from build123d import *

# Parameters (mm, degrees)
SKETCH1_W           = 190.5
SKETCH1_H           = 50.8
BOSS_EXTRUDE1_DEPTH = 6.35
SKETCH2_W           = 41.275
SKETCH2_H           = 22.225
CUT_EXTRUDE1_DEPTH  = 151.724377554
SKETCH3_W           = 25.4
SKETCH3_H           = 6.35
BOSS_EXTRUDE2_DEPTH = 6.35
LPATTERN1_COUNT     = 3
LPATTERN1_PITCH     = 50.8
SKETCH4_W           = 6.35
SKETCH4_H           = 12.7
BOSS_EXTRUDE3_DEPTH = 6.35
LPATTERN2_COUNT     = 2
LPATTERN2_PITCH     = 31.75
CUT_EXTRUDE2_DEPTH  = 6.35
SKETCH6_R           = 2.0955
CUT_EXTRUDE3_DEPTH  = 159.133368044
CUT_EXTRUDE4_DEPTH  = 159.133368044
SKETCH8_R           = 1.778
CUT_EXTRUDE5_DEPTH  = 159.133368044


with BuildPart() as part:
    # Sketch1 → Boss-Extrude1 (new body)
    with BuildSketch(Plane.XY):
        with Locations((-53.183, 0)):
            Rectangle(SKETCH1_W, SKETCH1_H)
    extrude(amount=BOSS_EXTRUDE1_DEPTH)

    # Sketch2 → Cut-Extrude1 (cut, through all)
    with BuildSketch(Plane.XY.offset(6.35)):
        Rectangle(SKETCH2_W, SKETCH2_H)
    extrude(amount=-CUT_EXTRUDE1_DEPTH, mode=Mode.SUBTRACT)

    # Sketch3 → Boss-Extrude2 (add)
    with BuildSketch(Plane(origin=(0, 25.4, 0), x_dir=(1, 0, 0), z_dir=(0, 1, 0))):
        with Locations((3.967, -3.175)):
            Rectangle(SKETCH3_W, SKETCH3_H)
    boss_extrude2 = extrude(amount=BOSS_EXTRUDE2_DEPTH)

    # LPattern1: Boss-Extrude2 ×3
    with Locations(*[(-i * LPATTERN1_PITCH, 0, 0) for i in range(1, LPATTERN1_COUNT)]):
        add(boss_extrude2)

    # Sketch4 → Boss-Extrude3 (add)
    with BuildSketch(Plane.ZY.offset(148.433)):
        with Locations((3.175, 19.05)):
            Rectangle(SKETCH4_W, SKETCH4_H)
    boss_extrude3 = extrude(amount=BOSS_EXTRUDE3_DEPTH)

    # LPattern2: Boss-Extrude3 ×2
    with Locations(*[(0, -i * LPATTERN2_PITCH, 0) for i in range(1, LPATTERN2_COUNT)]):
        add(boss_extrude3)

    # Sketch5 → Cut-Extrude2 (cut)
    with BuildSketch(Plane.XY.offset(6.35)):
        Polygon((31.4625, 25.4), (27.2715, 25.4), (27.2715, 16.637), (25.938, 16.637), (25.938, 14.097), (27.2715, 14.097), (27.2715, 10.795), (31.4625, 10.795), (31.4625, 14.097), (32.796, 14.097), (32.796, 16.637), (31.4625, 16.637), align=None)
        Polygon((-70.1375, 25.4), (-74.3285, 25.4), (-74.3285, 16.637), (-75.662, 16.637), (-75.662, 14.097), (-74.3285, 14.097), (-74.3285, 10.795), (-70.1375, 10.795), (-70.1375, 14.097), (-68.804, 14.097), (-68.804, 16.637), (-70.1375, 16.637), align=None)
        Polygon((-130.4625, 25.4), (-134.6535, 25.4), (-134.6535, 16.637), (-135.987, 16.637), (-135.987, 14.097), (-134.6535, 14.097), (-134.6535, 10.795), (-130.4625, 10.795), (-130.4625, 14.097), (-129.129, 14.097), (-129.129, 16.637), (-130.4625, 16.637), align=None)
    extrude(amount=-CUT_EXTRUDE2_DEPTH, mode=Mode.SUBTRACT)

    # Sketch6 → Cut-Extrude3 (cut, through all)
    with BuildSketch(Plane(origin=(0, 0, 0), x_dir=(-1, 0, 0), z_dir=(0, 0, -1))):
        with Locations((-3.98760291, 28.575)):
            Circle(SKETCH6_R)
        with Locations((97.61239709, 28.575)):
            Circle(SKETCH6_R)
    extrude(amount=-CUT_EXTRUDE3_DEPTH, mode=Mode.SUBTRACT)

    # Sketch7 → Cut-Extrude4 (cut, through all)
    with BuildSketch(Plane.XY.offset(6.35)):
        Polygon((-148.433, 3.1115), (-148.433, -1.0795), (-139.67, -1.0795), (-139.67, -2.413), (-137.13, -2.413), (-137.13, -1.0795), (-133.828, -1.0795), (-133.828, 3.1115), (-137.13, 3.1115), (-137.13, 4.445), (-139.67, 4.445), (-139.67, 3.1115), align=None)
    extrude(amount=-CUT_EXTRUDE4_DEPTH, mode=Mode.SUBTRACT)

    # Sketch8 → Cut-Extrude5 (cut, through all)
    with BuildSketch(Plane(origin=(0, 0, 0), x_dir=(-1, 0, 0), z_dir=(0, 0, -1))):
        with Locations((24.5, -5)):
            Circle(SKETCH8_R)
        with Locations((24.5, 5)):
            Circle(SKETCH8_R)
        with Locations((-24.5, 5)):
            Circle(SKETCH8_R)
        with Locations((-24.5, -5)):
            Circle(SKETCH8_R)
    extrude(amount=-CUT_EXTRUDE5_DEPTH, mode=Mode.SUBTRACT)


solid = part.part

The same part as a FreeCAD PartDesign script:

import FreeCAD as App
import Part
import Sketcher
Q = App.Units.Quantity

doc = App.newDocument("Part")
params = doc.addObject("Spreadsheet::Sheet", "Params")
for row, (alias, value) in enumerate([
    ("sketch1_height", "2 in"),
    ("sketch1_width", "7.5 in"),
    ("pad1_length", "0.25 in"),
    ("sketch2_width", "1.625 in"),
    ("sketch2_height", "0.875 in"),
    ("sketch3_width", "1 in"),
    ("sketch3_height", "0.25 in"),
    ("pad2_length", "0.25 in"),
    ("linearpattern_pitch", "2 in"),
    ("sketch4_width", "0.5 in"),
    ("sketch4_height", "0.25 in"),
    ("pad3_length", "0.25 in"),
    ("linearpattern2_pitch", "1.25 in"),
    ("sketch5_height", "0.1 in"),
    ("sketch5_height2", "0.13 in"),
    ("sketch5_width", "0.165 in"),
    ("sketch5_height3", "0.345 in"),
    ("pocket2_length", "0.25 in"),
    ("sketch6_diameter", "0.165 in"),
    ("sketch7_width", "0.1 in"),
    ("sketch7_width2", "0.13 in"),
    ("sketch7_width3", "0.345 in"),
    ("sketch7_height", "0.165 in"),
    ("sketch8_diameter", "0.14 in"),
], start=1):
    params.set(f"A{row}", alias)
    params.set(f"B{row}", "=" + value)
    params.setAlias(f"B{row}", alias)

body = doc.addObject("PartDesign::Body", "Body")

sketch1 = body.newObject("Sketcher::SketchObject", "Sketch")
sketch1.AttachmentSupport = (doc.getObject("XY_Plane"), [""])
sketch1.MapMode = "FlatFace"
sketch1.addGeometry([
    Part.LineSegment(App.Vector(-148, 25, 0), App.Vector(-148, -25, 0)),
    Part.LineSegment(App.Vector(-148, -25, 0), App.Vector(42, -25, 0)),
    Part.LineSegment(App.Vector(42, -25, 0), App.Vector(42, 25, 0)),
    Part.LineSegment(App.Vector(42, 25, 0), App.Vector(-148, 25, 0)),
], False)
sketch1.addConstraint([
    Sketcher.Constraint("Coincident", 0, 2, 1, 1),
    Sketcher.Constraint("Coincident", 1, 2, 2, 1),
    Sketcher.Constraint("Coincident", 2, 2, 3, 1),
    Sketcher.Constraint("Coincident", 3, 2, 0, 1),
    Sketcher.Constraint("Vertical", 0),
    Sketcher.Constraint("Horizontal", 1),
    Sketcher.Constraint("Vertical", 2),
    Sketcher.Constraint("Horizontal", 3),
    Sketcher.Constraint("DistanceY", 0, 2, 0, 1, Q("2 in")),
    Sketcher.Constraint("DistanceX", 1, 1, 1, 2, Q("7.5 in")),
    Sketcher.Constraint("DistanceY", 0, 2, -1, 1, Q("1 in")),
    Sketcher.Constraint("DistanceX", 0, 2, -1, 1, 148.433),
])
sketch1.setExpression("Constraints[8]", "Params.sketch1_height")
sketch1.setExpression("Constraints[9]", "Params.sketch1_width")
pad1 = body.newObject("PartDesign::Pad", "Pad")
pad1.Profile = sketch1
pad1.setExpression("Length", "Params.pad1_length")

sketch2 = body.newObject("Sketcher::SketchObject", "Sketch001")
sketch2.AttachmentSupport = (doc.getObject("XY_Plane"), [""])
sketch2.MapMode = "FlatFace"
sketch2.AttachmentOffset = App.Placement(App.Vector(0, 0, 0.25 * 25.4), App.Rotation())
sketch2.addGeometry([
    Part.LineSegment(App.Vector(-21, 11, 0), App.Vector(-21, -11, 0)),
    Part.LineSegment(App.Vector(-21, -11, 0), App.Vector(21, -11, 0)),
    Part.LineSegment(App.Vector(21, -11, 0), App.Vector(21, 11, 0)),
    Part.LineSegment(App.Vector(21, 11, 0), App.Vector(-21, 11, 0)),
], False)
sketch2.addConstraint([
    Sketcher.Constraint("Coincident", 0, 2, 1, 1),
    Sketcher.Constraint("Coincident", 1, 2, 2, 1),
    Sketcher.Constraint("Coincident", 2, 2, 3, 1),
    Sketcher.Constraint("Coincident", 3, 2, 0, 1),
    Sketcher.Constraint("Vertical", 0),
    Sketcher.Constraint("Horizontal", 1),
    Sketcher.Constraint("Vertical", 2),
    Sketcher.Constraint("Horizontal", 3),
    Sketcher.Constraint("Symmetric", 0, 2, 2, 2, -1, 1),
    Sketcher.Constraint("DistanceX", 1, 1, 1, 2, Q("1.625 in")),
    Sketcher.Constraint("DistanceY", 0, 2, 0, 1, Q("0.875 in")),
])
sketch2.setExpression("Constraints[9]", "Params.sketch2_width")
sketch2.setExpression("Constraints[10]", "Params.sketch2_height")
pocket1 = body.newObject("PartDesign::Pocket", "Pocket")
pocket1.Profile = sketch2
pocket1.Type = "ThroughAll"

sketch3 = body.newObject("Sketcher::SketchObject", "Sketch002")
sketch3.AttachmentSupport = (doc.getObject("XZ_Plane"), [""])
sketch3.MapMode = "FlatFace"
sketch3.AttachmentOffset = App.Placement(App.Vector(0, 0, -1 * 25.4), App.Rotation())
sketch3.addGeometry([
    Part.LineSegment(App.Vector(-9, 0, 0), App.Vector(-9, 6, 0)),
    Part.LineSegment(App.Vector(-9, 6, 0), App.Vector(17, 6, 0)),
    Part.LineSegment(App.Vector(17, 6, 0), App.Vector(17, 0, 0)),
    Part.LineSegment(App.Vector(17, 0, 0), App.Vector(-9, 0, 0)),
], False)
sketch3.addConstraint([
    Sketcher.Constraint("Coincident", 0, 2, 1, 1),
    Sketcher.Constraint("Coincident", 1, 2, 2, 1),
    Sketcher.Constraint("Coincident", 2, 2, 3, 1),
    Sketcher.Constraint("Coincident", 3, 2, 0, 1),
    Sketcher.Constraint("Vertical", 0),
    Sketcher.Constraint("Horizontal", 1),
    Sketcher.Constraint("Vertical", 2),
    Sketcher.Constraint("Horizontal", 3),
    Sketcher.Constraint("PointOnObject", 2, 2, -1),
    Sketcher.Constraint("DistanceX", 1, 1, 1, 2, Q("1 in")),
    Sketcher.Constraint("DistanceY", 0, 1, 0, 2, Q("0.25 in")),
    Sketcher.Constraint("DistanceX", 0, 2, -1, 1, 8.733),
])
sketch3.setExpression("Constraints[9]", "Params.sketch3_width")
sketch3.setExpression("Constraints[10]", "Params.sketch3_height")
pad2 = body.newObject("PartDesign::Pad", "Pad001")
pad2.Profile = sketch3
pad2.setExpression("Length", "Params.pad2_length")
pad2.Reversed = True
doc.recompute()

linearpattern = body.newObject("PartDesign::LinearPattern", "LinearPattern")
linearpattern.Originals = [pad2]
linearpattern.Direction = (doc.getObject("X_Axis"), [""])
linearpattern.Mode = "offset"
linearpattern.setExpression("Offset", "Params.linearpattern_pitch")
linearpattern.Occurrences = 3
linearpattern.Reversed = True
body.Tip = linearpattern

sketch4 = body.newObject("Sketcher::SketchObject", "Sketch003")
sketch4.AttachmentSupport = (doc.getObject("YZ_Plane"), [""])
sketch4.MapMode = "FlatFace"
sketch4.AttachmentOffset = App.Placement(App.Vector(0, 0, -148.433), App.Rotation())
sketch4.addGeometry([
    Part.LineSegment(App.Vector(25, 0, 0), App.Vector(13, 0, 0)),
    Part.LineSegment(App.Vector(13, 0, 0), App.Vector(13, 6, 0)),
    Part.LineSegment(App.Vector(13, 6, 0), App.Vector(25, 6, 0)),
    Part.LineSegment(App.Vector(25, 6, 0), App.Vector(25, 0, 0)),
], False)
sketch4.addConstraint([
    Sketcher.Constraint("Coincident", 0, 2, 1, 1),
    Sketcher.Constraint("Coincident", 1, 2, 2, 1),
    Sketcher.Constraint("Coincident", 2, 2, 3, 1),
    Sketcher.Constraint("Coincident", 3, 2, 0, 1),
    Sketcher.Constraint("Horizontal", 0),
    Sketcher.Constraint("Vertical", 1),
    Sketcher.Constraint("Horizontal", 2),
    Sketcher.Constraint("Vertical", 3),
    Sketcher.Constraint("PointOnObject", 0, 2, -1),
    Sketcher.Constraint("DistanceX", 0, 2, 0, 1, Q("0.5 in")),
    Sketcher.Constraint("DistanceX", -1, 1, 2, 2, Q("1 in")),
    Sketcher.Constraint("DistanceY", 1, 1, 1, 2, Q("0.25 in")),
])
sketch4.setExpression("Constraints[9]", "Params.sketch4_width")
sketch4.setExpression("Constraints[11]", "Params.sketch4_height")
pad3 = body.newObject("PartDesign::Pad", "Pad002")
pad3.Profile = sketch4
pad3.setExpression("Length", "Params.pad3_length")
pad3.Reversed = True
doc.recompute()

linearpattern2 = body.newObject("PartDesign::LinearPattern", "LinearPattern001")
linearpattern2.Originals = [pad3]
linearpattern2.Direction = (doc.getObject("Y_Axis"), [""])
linearpattern2.Mode = "offset"
linearpattern2.setExpression("Offset", "Params.linearpattern2_pitch")
linearpattern2.Occurrences = 2
linearpattern2.Reversed = True
body.Tip = linearpattern2

sketch5 = body.newObject("Sketcher::SketchObject", "Sketch004")
sketch5.AttachmentSupport = (doc.getObject("XY_Plane"), [""])
sketch5.MapMode = "FlatFace"
sketch5.AttachmentOffset = App.Placement(App.Vector(0, 0, 0.25 * 25.4), App.Rotation())
sketch5.addGeometry([
    Part.LineSegment(App.Vector(31.5, 25.4, 0), App.Vector(27.3, 25.4, 0)),
    Part.LineSegment(App.Vector(27.3, 25.4, 0), App.Vector(27.3, 16.6, 0)),
    Part.LineSegment(App.Vector(27.3, 16.6, 0), App.Vector(25.9, 16.6, 0)),
    Part.LineSegment(App.Vector(25.9, 16.6, 0), App.Vector(25.9, 14.1, 0)),
    Part.LineSegment(App.Vector(25.9, 14.1, 0), App.Vector(27.3, 14.1, 0)),
    Part.LineSegment(App.Vector(27.3, 14.1, 0), App.Vector(27.3, 10.8, 0)),
    Part.LineSegment(App.Vector(27.3, 10.8, 0), App.Vector(31.5, 10.8, 0)),
    Part.LineSegment(App.Vector(31.5, 10.8, 0), App.Vector(31.5, 14.1, 0)),
    Part.LineSegment(App.Vector(31.5, 14.1, 0), App.Vector(32.8, 14.1, 0)),
    Part.LineSegment(App.Vector(32.8, 14.1, 0), App.Vector(32.8, 16.6, 0)),
    Part.LineSegment(App.Vector(32.8, 16.6, 0), App.Vector(31.5, 16.6, 0)),
    Part.LineSegment(App.Vector(31.5, 16.6, 0), App.Vector(31.5, 25.4, 0)),
    Part.LineSegment(App.Vector(-70.1, 25.4, 0), App.Vector(-74.3, 25.4, 0)),
    Part.LineSegment(App.Vector(-74.3, 25.4, 0), App.Vector(-74.3, 16.6, 0)),
    Part.LineSegment(App.Vector(-74.3, 16.6, 0), App.Vector(-75.7, 16.6, 0)),
    Part.LineSegment(App.Vector(-75.7, 16.6, 0), App.Vector(-75.7, 14.1, 0)),
    Part.LineSegment(App.Vector(-75.7, 14.1, 0), App.Vector(-74.3, 14.1, 0)),
    Part.LineSegment(App.Vector(-74.3, 14.1, 0), App.Vector(-74.3, 10.8, 0)),
    Part.LineSegment(App.Vector(-74.3, 10.8, 0), App.Vector(-70.1, 10.8, 0)),
    Part.LineSegment(App.Vector(-70.1, 10.8, 0), App.Vector(-70.1, 14.1, 0)),
    Part.LineSegment(App.Vector(-70.1, 14.1, 0), App.Vector(-68.8, 14.1, 0)),
    Part.LineSegment(App.Vector(-68.8, 14.1, 0), App.Vector(-68.8, 16.6, 0)),
    Part.LineSegment(App.Vector(-68.8, 16.6, 0), App.Vector(-70.1, 16.6, 0)),
    Part.LineSegment(App.Vector(-70.1, 16.6, 0), App.Vector(-70.1, 25.4, 0)),
    Part.LineSegment(App.Vector(-130.5, 25.4, 0), App.Vector(-134.7, 25.4, 0)),
    Part.LineSegment(App.Vector(-134.7, 25.4, 0), App.Vector(-134.7, 16.6, 0)),
    Part.LineSegment(App.Vector(-134.7, 16.6, 0), App.Vector(-136, 16.6, 0)),
    Part.LineSegment(App.Vector(-136, 16.6, 0), App.Vector(-136, 14.1, 0)),
    Part.LineSegment(App.Vector(-136, 14.1, 0), App.Vector(-134.7, 14.1, 0)),
    Part.LineSegment(App.Vector(-134.7, 14.1, 0), App.Vector(-134.7, 10.8, 0)),
    Part.LineSegment(App.Vector(-134.7, 10.8, 0), App.Vector(-130.5, 10.8, 0)),
    Part.LineSegment(App.Vector(-130.5, 10.8, 0), App.Vector(-130.5, 14.1, 0)),
    Part.LineSegment(App.Vector(-130.5, 14.1, 0), App.Vector(-129.1, 14.1, 0)),
    Part.LineSegment(App.Vector(-129.1, 14.1, 0), App.Vector(-129.1, 16.6, 0)),
    Part.LineSegment(App.Vector(-129.1, 16.6, 0), App.Vector(-130.5, 16.6, 0)),
    Part.LineSegment(App.Vector(-130.5, 16.6, 0), App.Vector(-130.5, 25.4, 0)),
], False)
sketch5.addConstraint([
    Sketcher.Constraint("Coincident", 0, 2, 1, 1),
    Sketcher.Constraint("Coincident", 1, 2, 2, 1),
    Sketcher.Constraint("Coincident", 2, 2, 3, 1),
    Sketcher.Constraint("Coincident", 3, 2, 4, 1),
    Sketcher.Constraint("Coincident", 4, 2, 5, 1),
    Sketcher.Constraint("Coincident", 5, 2, 6, 1),
    Sketcher.Constraint("Coincident", 6, 2, 7, 1),
    Sketcher.Constraint("Coincident", 7, 2, 8, 1),
    Sketcher.Constraint("Coincident", 8, 2, 9, 1),
    Sketcher.Constraint("Coincident", 9, 2, 10, 1),
    Sketcher.Constraint("Coincident", 10, 2, 11, 1),
    Sketcher.Constraint("Coincident", 11, 2, 0, 1),
    Sketcher.Constraint("Coincident", 12, 2, 13, 1),
    Sketcher.Constraint("Coincident", 13, 2, 14, 1),
    Sketcher.Constraint("Coincident", 14, 2, 15, 1),
    Sketcher.Constraint("Coincident", 15, 2, 16, 1),
    Sketcher.Constraint("Coincident", 16, 2, 17, 1),
    Sketcher.Constraint("Coincident", 17, 2, 18, 1),
    Sketcher.Constraint("Coincident", 18, 2, 19, 1),
    Sketcher.Constraint("Coincident", 19, 2, 20, 1),
    Sketcher.Constraint("Coincident", 20, 2, 21, 1),
    Sketcher.Constraint("Coincident", 21, 2, 22, 1),
    Sketcher.Constraint("Coincident", 22, 2, 23, 1),
    Sketcher.Constraint("Coincident", 23, 2, 12, 1),
    Sketcher.Constraint("Coincident", 24, 2, 25, 1),
    Sketcher.Constraint("Coincident", 25, 2, 26, 1),
    Sketcher.Constraint("Coincident", 26, 2, 27, 1),
    Sketcher.Constraint("Coincident", 27, 2, 28, 1),
    Sketcher.Constraint("Coincident", 28, 2, 29, 1),
    Sketcher.Constraint("Coincident", 29, 2, 30, 1),
    Sketcher.Constraint("Coincident", 30, 2, 31, 1),
    Sketcher.Constraint("Coincident", 31, 2, 32, 1),
    Sketcher.Constraint("Coincident", 32, 2, 33, 1),
    Sketcher.Constraint("Coincident", 33, 2, 34, 1),
    Sketcher.Constraint("Coincident", 34, 2, 35, 1),
    Sketcher.Constraint("Coincident", 35, 2, 24, 1),
    Sketcher.Constraint("Horizontal", 0),
    Sketcher.Constraint("Vertical", 1),
    Sketcher.Constraint("Horizontal", 2),
    Sketcher.Constraint("Vertical", 3),
    Sketcher.Constraint("Horizontal", 4),
    Sketcher.Constraint("Vertical", 5),
    Sketcher.Constraint("Horizontal", 6),
    Sketcher.Constraint("Vertical", 7),
    Sketcher.Constraint("Horizontal", 8),
    Sketcher.Constraint("Vertical", 9),
    Sketcher.Constraint("Horizontal", 10),
    Sketcher.Constraint("Vertical", 11),
    Sketcher.Constraint("Horizontal", 12),
    Sketcher.Constraint("Vertical", 13),
    Sketcher.Constraint("Horizontal", 14),
    Sketcher.Constraint("Vertical", 15),
    Sketcher.Constraint("Horizontal", 16),
    Sketcher.Constraint("Vertical", 17),
    Sketcher.Constraint("Horizontal", 18),
    Sketcher.Constraint("Vertical", 19),
    Sketcher.Constraint("Horizontal", 20),
    Sketcher.Constraint("Vertical", 21),
    Sketcher.Constraint("Horizontal", 22),
    Sketcher.Constraint("Vertical", 23),
    Sketcher.Constraint("Horizontal", 24),
    Sketcher.Constraint("Vertical", 25),
    Sketcher.Constraint("Horizontal", 26),
    Sketcher.Constraint("Vertical", 27),
    Sketcher.Constraint("Horizontal", 28),
    Sketcher.Constraint("Vertical", 29),
    Sketcher.Constraint("Horizontal", 30),
    Sketcher.Constraint("Vertical", 31),
    Sketcher.Constraint("Horizontal", 32),
    Sketcher.Constraint("Vertical", 33),
    Sketcher.Constraint("Horizontal", 34),
    Sketcher.Constraint("Vertical", 35),
    Sketcher.Constraint("Horizontal", 4, 2, 7, 2),
    Sketcher.Constraint("Horizontal", 2, 2, 9, 2),
    Sketcher.Constraint("Horizontal", 11, 2, 12, 2),
    Sketcher.Constraint("Horizontal", 10, 2, 13, 2),
    Sketcher.Constraint("Horizontal", 8, 2, 15, 2),
    Sketcher.Constraint("Horizontal", 6, 2, 17, 2),
    Sketcher.Constraint("Horizontal", 16, 2, 19, 2),
    Sketcher.Constraint("Horizontal", 14, 2, 21, 2),
    Sketcher.Constraint("Horizontal", 23, 2, 24, 2),
    Sketcher.Constraint("Horizontal", 22, 2, 25, 2),
    Sketcher.Constraint("Horizontal", 20, 2, 27, 2),
    Sketcher.Constraint("Horizontal", 18, 2, 29, 2),
    Sketcher.Constraint("Horizontal", 28, 2, 31, 2),
    Sketcher.Constraint("Horizontal", 26, 2, 33, 2),
    Sketcher.Constraint("Vertical", 1, 2, 4, 2),
    Sketcher.Constraint("Vertical", 7, 2, 10, 2),
    Sketcher.Constraint("Vertical", 13, 2, 16, 2),
    Sketcher.Constraint("Vertical", 19, 2, 22, 2),
    Sketcher.Constraint("Vertical", 25, 2, 28, 2),
    Sketcher.Constraint("Vertical", 31, 2, 34, 2),
    Sketcher.Constraint("Equal", 4, 8),
    Sketcher.Constraint("Equal", 6, 12),
    Sketcher.Constraint("Equal", 10, 14),
    Sketcher.Constraint("Equal", 16, 20),
    Sketcher.Constraint("Equal", 18, 24),
    Sketcher.Constraint("Equal", 22, 26),
    Sketcher.Constraint("Equal", 28, 32),
    Sketcher.Constraint("DistanceY", 3, 2, 3, 1, Q("0.1 in")),
    Sketcher.Constraint("DistanceY", -1, 1, 0, 2, Q("1 in")),
    Sketcher.Constraint("DistanceX", 12, 2, 0, 2, Q("4 in")),
    Sketcher.Constraint("DistanceY", 5, 2, 5, 1, Q("0.13 in")),
    Sketcher.Constraint("DistanceX", 0, 2, 0, 1, Q("0.165 in")),
    Sketcher.Constraint("DistanceY", 1, 2, 1, 1, Q("0.345 in")),
    Sketcher.Constraint("DistanceX", 2, 2, 2, 1, Q("0.0525 in")),
    Sketcher.Constraint("DistanceX", 24, 2, 12, 2, Q("2.375 in")),
    Sketcher.Constraint("DistanceX", -1, 1, 0, 2, 27.2715),
])
sketch5.setExpression("Constraints[99]", "Params.sketch5_height")
sketch5.setExpression("Constraints[102]", "Params.sketch5_height2")
sketch5.setExpression("Constraints[103]", "Params.sketch5_width")
sketch5.setExpression("Constraints[104]", "Params.sketch5_height3")
pocket2 = body.newObject("PartDesign::Pocket", "Pocket001")
pocket2.Profile = sketch5
pocket2.setExpression("Length", "Params.pocket2_length")

sketch6 = body.newObject("Sketcher::SketchObject", "Sketch005")
sketch6.AttachmentSupport = (doc.getObject("XY_Plane"), [""])
sketch6.MapMode = "FlatFace"
sketch6.addGeometry([
    Part.Circle(App.Vector(4, 28.6, 0), App.Vector(0, 0, 1), 2.1),
    Part.Circle(App.Vector(-97.6, 28.6, 0), App.Vector(0, 0, 1), 2.1),
], False)
sketch6.addConstraint([
    Sketcher.Constraint("Equal", 0, 1),
    Sketcher.Constraint("Horizontal", 0, 3, 1, 3),
    Sketcher.Constraint("Diameter", 0, Q("0.165 in")),
    Sketcher.Constraint("DistanceX", 1, 3, 0, 3, Q("4 in")),
    Sketcher.Constraint("DistanceY", -1, 1, 0, 3, Q("1.125 in")),
    Sketcher.Constraint("DistanceX", -1, 1, 0, 3, 3.987603),
])
sketch6.setExpression("Constraints[2]", "Params.sketch6_diameter")
pocket3 = body.newObject("PartDesign::Pocket", "Pocket002")
pocket3.Profile = sketch6
pocket3.Type = "ThroughAll"
pocket3.Reversed = True

sketch7 = body.newObject("Sketcher::SketchObject", "Sketch006")
sketch7.AttachmentSupport = (doc.getObject("XY_Plane"), [""])
sketch7.MapMode = "FlatFace"
sketch7.AttachmentOffset = App.Placement(App.Vector(0, 0, 0.25 * 25.4), App.Rotation())
sketch7.addGeometry([
    Part.LineSegment(App.Vector(-148.4, 3.1, 0), App.Vector(-148.4, -1.1, 0)),
    Part.LineSegment(App.Vector(-148.4, -1.1, 0), App.Vector(-139.7, -1.1, 0)),
    Part.LineSegment(App.Vector(-139.7, -1.1, 0), App.Vector(-139.7, -2.4, 0)),
    Part.LineSegment(App.Vector(-139.7, -2.4, 0), App.Vector(-137.1, -2.4, 0)),
    Part.LineSegment(App.Vector(-137.1, -2.4, 0), App.Vector(-137.1, -1.1, 0)),
    Part.LineSegment(App.Vector(-137.1, -1.1, 0), App.Vector(-133.8, -1.1, 0)),
    Part.LineSegment(App.Vector(-133.8, -1.1, 0), App.Vector(-133.8, 3.1, 0)),
    Part.LineSegment(App.Vector(-133.8, 3.1, 0), App.Vector(-137.1, 3.1, 0)),
    Part.LineSegment(App.Vector(-137.1, 3.1, 0), App.Vector(-137.1, 4.4, 0)),
    Part.LineSegment(App.Vector(-137.1, 4.4, 0), App.Vector(-139.7, 4.4, 0)),
    Part.LineSegment(App.Vector(-139.7, 4.4, 0), App.Vector(-139.7, 3.1, 0)),
    Part.LineSegment(App.Vector(-139.7, 3.1, 0), App.Vector(-148.4, 3.1, 0)),
], False)
sketch7.addConstraint([
    Sketcher.Constraint("Coincident", 0, 2, 1, 1),
    Sketcher.Constraint("Coincident", 1, 2, 2, 1),
    Sketcher.Constraint("Coincident", 2, 2, 3, 1),
    Sketcher.Constraint("Coincident", 3, 2, 4, 1),
    Sketcher.Constraint("Coincident", 4, 2, 5, 1),
    Sketcher.Constraint("Coincident", 5, 2, 6, 1),
    Sketcher.Constraint("Coincident", 6, 2, 7, 1),
    Sketcher.Constraint("Coincident", 7, 2, 8, 1),
    Sketcher.Constraint("Coincident", 8, 2, 9, 1),
    Sketcher.Constraint("Coincident", 9, 2, 10, 1),
    Sketcher.Constraint("Coincident", 10, 2, 11, 1),
    Sketcher.Constraint("Coincident", 11, 2, 0, 1),
    Sketcher.Constraint("Vertical", 0),
    Sketcher.Constraint("Horizontal", 1),
    Sketcher.Constraint("Vertical", 2),
    Sketcher.Constraint("Horizontal", 3),
    Sketcher.Constraint("Vertical", 4),
    Sketcher.Constraint("Horizontal", 5),
    Sketcher.Constraint("Vertical", 6),
    Sketcher.Constraint("Horizontal", 7),
    Sketcher.Constraint("Vertical", 8),
    Sketcher.Constraint("Horizontal", 9),
    Sketcher.Constraint("Vertical", 10),
    Sketcher.Constraint("Horizontal", 11),
    Sketcher.Constraint("Horizontal", 1, 2, 4, 2),
    Sketcher.Constraint("Horizontal", 7, 2, 10, 2),
    Sketcher.Constraint("Vertical", 4, 2, 7, 2),
    Sketcher.Constraint("Vertical", 2, 2, 9, 2),
    Sketcher.Constraint("Equal", 4, 8),
    Sketcher.Constraint("DistanceX", 3, 1, 3, 2, Q("0.1 in")),
    Sketcher.Constraint("DistanceX", 5, 1, 5, 2, Q("0.13 in")),
    Sketcher.Constraint("DistanceX", 1, 1, 1, 2, Q("0.345 in")),
    Sketcher.Constraint("DistanceY", 0, 2, 0, 1, Q("0.165 in")),
    Sketcher.Constraint("DistanceY", 2, 2, 2, 1, Q("0.0525 in")),
    Sketcher.Constraint("DistanceY", 2, 2, -1, 1, Q("0.095 in")),
    Sketcher.Constraint("DistanceX", 0, 2, -1, 1, 148.433),
])
sketch7.setExpression("Constraints[29]", "Params.sketch7_width")
sketch7.setExpression("Constraints[30]", "Params.sketch7_width2")
sketch7.setExpression("Constraints[31]", "Params.sketch7_width3")
sketch7.setExpression("Constraints[32]", "Params.sketch7_height")
pocket4 = body.newObject("PartDesign::Pocket", "Pocket003")
pocket4.Profile = sketch7
pocket4.Type = "ThroughAll"

sketch8 = body.newObject("Sketcher::SketchObject", "Sketch007")
sketch8.AttachmentSupport = (doc.getObject("XY_Plane"), [""])
sketch8.MapMode = "FlatFace"
sketch8.addGeometry([
    Part.Circle(App.Vector(-24.5, -5, 0), App.Vector(0, 0, 1), 1.8),
    Part.Circle(App.Vector(-24.5, 5, 0), App.Vector(0, 0, 1), 1.8),
    Part.Circle(App.Vector(24.5, 5, 0), App.Vector(0, 0, 1), 1.8),
    Part.Circle(App.Vector(24.5, -5, 0), App.Vector(0, 0, 1), 1.8),
], False)
sketch8.addConstraint([
    Sketcher.Constraint("Equal", 0, 1),
    Sketcher.Constraint("Equal", 1, 2),
    Sketcher.Constraint("Equal", 2, 3),
    Sketcher.Constraint("Symmetric", 0, 3, 2, 3, -1, 1),
    Sketcher.Constraint("Symmetric", 1, 3, 3, 3, -1, 1),
    Sketcher.Constraint("Symmetric", 1, 3, 2, 3, -2),
    Sketcher.Constraint("Diameter", 0, Q("0.14 in")),
    Sketcher.Constraint("DistanceX", 0, 3, -1, 1, 24.5),
    Sketcher.Constraint("DistanceY", 0, 3, -1, 1, 5.0),
])
sketch8.setExpression("Constraints[6]", "Params.sketch8_diameter")
pocket5 = body.newObject("PartDesign::Pocket", "Pocket004")
pocket5.Profile = sketch8
pocket5.Type = "ThroughAll"
pocket5.Reversed = True

doc.recompute()
